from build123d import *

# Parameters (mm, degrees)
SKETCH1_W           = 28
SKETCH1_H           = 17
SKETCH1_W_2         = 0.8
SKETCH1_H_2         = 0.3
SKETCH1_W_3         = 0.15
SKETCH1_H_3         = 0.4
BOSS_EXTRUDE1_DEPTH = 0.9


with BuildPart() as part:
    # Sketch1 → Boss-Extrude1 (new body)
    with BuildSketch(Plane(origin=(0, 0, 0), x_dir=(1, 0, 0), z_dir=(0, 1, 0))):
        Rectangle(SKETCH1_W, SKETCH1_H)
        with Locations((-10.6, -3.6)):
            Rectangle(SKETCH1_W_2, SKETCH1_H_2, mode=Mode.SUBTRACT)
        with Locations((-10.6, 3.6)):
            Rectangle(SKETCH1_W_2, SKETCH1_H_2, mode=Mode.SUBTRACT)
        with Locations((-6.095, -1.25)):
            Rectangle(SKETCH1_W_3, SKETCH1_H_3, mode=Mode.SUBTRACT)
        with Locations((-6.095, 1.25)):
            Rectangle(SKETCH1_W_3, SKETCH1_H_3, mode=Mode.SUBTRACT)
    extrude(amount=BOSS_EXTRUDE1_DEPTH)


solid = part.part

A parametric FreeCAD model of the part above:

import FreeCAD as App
import Part
import Sketcher

V = App.Vector


def add_polygon(sketch, points):
    """Adds a closed chain of lines whose ends are joined by coincident constraints."""
    first, n = sketch.GeometryCount, len(points)
    for a, b in zip(points, points[1:] + points[:1]):
        sketch.addGeometry(Part.LineSegment(App.Vector(*a, 0), App.Vector(*b, 0)), False)
    for i in range(n):
        sketch.addConstraint(Sketcher.Constraint("Coincident", first + i, 2, first + (i + 1) % n, 1))

doc = App.newDocument("Part")
body = doc.addObject("PartDesign::Body", "Body")

# Sketch on XZ plane
sketch1 = body.newObject("Sketcher::SketchObject", "Sketch")
sketch1.AttachmentSupport = (doc.getObject("XZ_Plane"), [""])
sketch1.MapMode = "FlatFace"
add_polygon(sketch1, [(-14, -8.5), (-14, 8.5), (14, 8.5), (14, -8.5)])  # lines 0-3
add_polygon(sketch1, [(-10.2, 3.75), (-11, 3.75), (-11, 3.45), (-10.2, 3.45)])  # lines 4-7
add_polygon(sketch1, [(-6.02, 1.45), (-6.17, 1.45), (-6.17, 1.05), (-6.02, 1.05)])  # lines 8-11
add_polygon(sketch1, [(-10.2, -3.45), (-11, -3.45), (-11, -3.75), (-10.2, -3.75)])  # lines 12-15
add_polygon(sketch1, [(-6.02, -1.05), (-6.17, -1.05), (-6.17, -1.45), (-6.02, -1.45)])  # lines 16-19
sketch1.addConstraint(Sketcher.Constraint("Vertical", 0))
sketch1.addConstraint(Sketcher.Constraint("Horizontal", 1))
sketch1.addConstraint(Sketcher.Constraint("Vertical", 2))
sketch1.addConstraint(Sketcher.Constraint("Horizontal", 3))
sketch1.addConstraint(Sketcher.Constraint("Horizontal", 4))
sketch1.addConstraint(Sketcher.Constraint("Vertical", 5))
sketch1.addConstraint(Sketcher.Constraint("Horizontal", 6))
sketch1.addConstraint(Sketcher.Constraint("Vertical", 7))
sketch1.addConstraint(Sketcher.Constraint("Horizontal", 8))
sketch1.addConstraint(Sketcher.Constraint("Vertical", 9))
sketch1.addConstraint(Sketcher.Constraint("Horizontal", 10))
sketch1.addConstraint(Sketcher.Constraint("Vertical", 11))
sketch1.addConstraint(Sketcher.Constraint("Horizontal", 12))
sketch1.addConstraint(Sketcher.Constraint("Vertical", 13))
sketch1.addConstraint(Sketcher.Constraint("Horizontal", 14))
sketch1.addConstraint(Sketcher.Constraint("Vertical", 15))
sketch1.addConstraint(Sketcher.Constraint("Horizontal", 16))
sketch1.addConstraint(Sketcher.Constraint("Vertical", 17))
sketch1.addConstraint(Sketcher.Constraint("Horizontal", 18))
sketch1.addConstraint(Sketcher.Constraint("Vertical", 19))
sketch1.addConstraint(Sketcher.Constraint("Symmetric", 0, 2, 2, 2, -1, 1))
sketch1.addConstraint(Sketcher.Constraint("Symmetric", 5, 2, 12, 2, -1))
sketch1.addConstraint(Sketcher.Constraint("Symmetric", 7, 2, 14, 2, -1))
sketch1.addConstraint(Sketcher.Constraint("Symmetric", 9, 2, 16, 2, -1))
sketch1.addConstraint(Sketcher.Constraint("Symmetric", 11, 2, 18, 2, -1))
sketch1.addConstraint(Sketcher.Constraint("DistanceX", 1, 1, 1, 2, 28.0))
sketch1.addConstraint(Sketcher.Constraint("DistanceY", 0, 1, 0, 2, 17.0))
sketch1.addConstraint(Sketcher.Constraint("DistanceX", 4, 2, 4, 1, 0.8))
sketch1.addConstraint(Sketcher.Constraint("DistanceY", 5, 2, 5, 1, 0.3))
sketch1.addConstraint(Sketcher.Constraint("DistanceY", 9, 2, 9, 1, 0.4))
sketch1.addConstraint(Sketcher.Constraint("DistanceX", 4, 2, -1, 1, 11.0))
sketch1.addConstraint(Sketcher.Constraint("DistanceY", 8, 2, 6, 2, 2.0))
sketch1.addConstraint(Sketcher.Constraint("DistanceX", 8, 2, 8, 1, 0.15))
sketch1.addConstraint(Sketcher.Constraint("DistanceY", 12, 2, 9, 2, 4.5))
sketch1.addConstraint(Sketcher.Constraint("DistanceX", 8, 2, -1, 1, 6.17))
pad1 = body.newObject("PartDesign::Pad", "Pad")
pad1.Profile = sketch1
pad1.Length = 0.9
pad1.Reversed = True

doc.recompute()
